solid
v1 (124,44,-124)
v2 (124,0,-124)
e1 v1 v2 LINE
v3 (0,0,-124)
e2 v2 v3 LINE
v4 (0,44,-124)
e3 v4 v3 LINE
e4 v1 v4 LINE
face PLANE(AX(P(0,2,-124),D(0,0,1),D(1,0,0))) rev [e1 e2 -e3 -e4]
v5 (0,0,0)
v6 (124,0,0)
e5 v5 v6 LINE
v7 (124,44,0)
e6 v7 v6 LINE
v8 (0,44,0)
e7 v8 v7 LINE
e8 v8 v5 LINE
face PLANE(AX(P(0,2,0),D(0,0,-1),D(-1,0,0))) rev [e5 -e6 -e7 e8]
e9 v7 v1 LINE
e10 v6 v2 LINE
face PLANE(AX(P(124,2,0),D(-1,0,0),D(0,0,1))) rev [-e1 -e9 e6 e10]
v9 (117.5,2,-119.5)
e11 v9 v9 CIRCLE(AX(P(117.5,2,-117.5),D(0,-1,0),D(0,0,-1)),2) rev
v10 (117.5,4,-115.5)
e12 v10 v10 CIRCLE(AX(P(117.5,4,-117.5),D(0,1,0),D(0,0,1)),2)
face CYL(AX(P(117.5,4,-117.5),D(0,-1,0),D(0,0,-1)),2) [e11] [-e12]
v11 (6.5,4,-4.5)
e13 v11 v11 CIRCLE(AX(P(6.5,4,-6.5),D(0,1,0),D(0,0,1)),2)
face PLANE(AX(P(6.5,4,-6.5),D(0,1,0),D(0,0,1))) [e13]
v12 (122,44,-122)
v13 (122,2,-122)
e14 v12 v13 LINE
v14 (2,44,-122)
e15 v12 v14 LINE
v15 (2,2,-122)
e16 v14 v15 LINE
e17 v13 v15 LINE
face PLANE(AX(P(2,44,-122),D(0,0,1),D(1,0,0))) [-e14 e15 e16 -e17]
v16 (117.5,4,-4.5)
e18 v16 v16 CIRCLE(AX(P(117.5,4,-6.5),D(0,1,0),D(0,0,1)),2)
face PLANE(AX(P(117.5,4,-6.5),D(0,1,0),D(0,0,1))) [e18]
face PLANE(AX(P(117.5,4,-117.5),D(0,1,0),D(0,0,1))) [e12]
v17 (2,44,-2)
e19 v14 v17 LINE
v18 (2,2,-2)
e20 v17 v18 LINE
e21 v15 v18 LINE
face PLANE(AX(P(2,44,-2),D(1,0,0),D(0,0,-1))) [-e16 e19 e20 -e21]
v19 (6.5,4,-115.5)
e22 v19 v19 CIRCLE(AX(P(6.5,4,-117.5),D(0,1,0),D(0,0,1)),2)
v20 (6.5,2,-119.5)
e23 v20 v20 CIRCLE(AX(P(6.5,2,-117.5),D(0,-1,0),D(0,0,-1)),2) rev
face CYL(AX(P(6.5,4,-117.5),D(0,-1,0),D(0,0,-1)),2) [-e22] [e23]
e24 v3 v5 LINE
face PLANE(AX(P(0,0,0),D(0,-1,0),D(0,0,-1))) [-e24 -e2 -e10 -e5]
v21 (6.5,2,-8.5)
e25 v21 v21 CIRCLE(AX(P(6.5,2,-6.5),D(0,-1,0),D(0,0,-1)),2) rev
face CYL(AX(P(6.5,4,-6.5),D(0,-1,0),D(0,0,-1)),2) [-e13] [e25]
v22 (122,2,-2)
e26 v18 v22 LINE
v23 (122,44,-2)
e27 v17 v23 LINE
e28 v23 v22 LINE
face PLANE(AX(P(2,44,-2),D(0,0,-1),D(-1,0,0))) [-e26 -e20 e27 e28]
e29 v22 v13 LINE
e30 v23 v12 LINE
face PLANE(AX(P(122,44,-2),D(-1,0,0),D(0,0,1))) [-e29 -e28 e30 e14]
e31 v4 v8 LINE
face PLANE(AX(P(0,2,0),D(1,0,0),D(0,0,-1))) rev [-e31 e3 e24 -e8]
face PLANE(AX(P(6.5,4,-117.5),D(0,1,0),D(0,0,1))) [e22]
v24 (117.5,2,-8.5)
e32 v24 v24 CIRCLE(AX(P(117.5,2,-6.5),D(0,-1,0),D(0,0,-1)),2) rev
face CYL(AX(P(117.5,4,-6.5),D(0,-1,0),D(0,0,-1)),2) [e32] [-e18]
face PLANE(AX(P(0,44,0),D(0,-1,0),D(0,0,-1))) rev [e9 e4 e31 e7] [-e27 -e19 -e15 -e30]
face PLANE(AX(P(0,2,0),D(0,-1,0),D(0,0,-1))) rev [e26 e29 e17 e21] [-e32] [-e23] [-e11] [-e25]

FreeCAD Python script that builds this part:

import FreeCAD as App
import Part
import Sketcher

doc = App.newDocument("Part")
body = doc.addObject("PartDesign::Body", "Body")

# Sketch on XZ plane
sketch1 = doc.addObject("Sketcher::SketchObject", "Sketch")
body.addObject(sketch1)
sketch1.AttachmentSupport = (doc.XZ_Plane, [""])
sketch1.MapMode = "FlatFace"
sketch1.addGeometry(Part.LineSegment(App.Vector(0, -124, 0), App.Vector(0, 0, 0)), False)
sketch1.addGeometry(Part.LineSegment(App.Vector(0, 0, 0), App.Vector(124, 0, 0)), False)
sketch1.addGeometry(Part.LineSegment(App.Vector(124, 0, 0), App.Vector(124, -124, 0)), False)
sketch1.addGeometry(Part.LineSegment(App.Vector(124, -124, 0), App.Vector(0, -124, 0)), False)
sketch1.addConstraint(Sketcher.Constraint("Coincident", 0, 2, 1, 1))
sketch1.addConstraint(Sketcher.Constraint("Coincident", 1, 2, 2, 1))
sketch1.addConstraint(Sketcher.Constraint("Coincident", 2, 2, 3, 1))
sketch1.addConstraint(Sketcher.Constraint("Coincident", 3, 2, 0, 1))
sketch1.addConstraint(Sketcher.Constraint("Vertical", 0))
sketch1.addConstraint(Sketcher.Constraint("Horizontal", 1))
sketch1.addConstraint(Sketcher.Constraint("Vertical", 2))
sketch1.addConstraint(Sketcher.Constraint("Horizontal", 3))
sketch1.addConstraint(Sketcher.Constraint("Coincident", 0, 2, -1, 1))
sketch1.addConstraint(Sketcher.Constraint("Equal", 3, 0))
sketch1.addConstraint(Sketcher.Constraint("DistanceX", 1, 1, 1, 2, 124.0))
pad1 = doc.addObject("PartDesign::Pad", "Pad")
body.addObject(pad1)
pad1.Profile = sketch1
pad1.Length = 2
pad1.Reversed = True

# Sketch on XZ plane
sketch2 = doc.addObject("Sketcher::SketchObject", "Sketch001")
body.addObject(sketch2)
sketch2.AttachmentSupport = (doc.XZ_Plane, [""])
sketch2.MapMode = "FlatFace"
sketch2.AttachmentOffset = App.Placement(App.Vector(0, 0, -2), App.Rotation())
sketch2.addGeometry(Part.LineSegment(App.Vector(0, -124, 0), App.Vector(0, 0, 0)), False)
sketch2.addGeometry(Part.LineSegment(App.Vector(0, 0, 0), App.Vector(124, 0, 0)), False)
sketch2.addGeometry(Part.LineSegment(App.Vector(124, 0, 0), App.Vector(124, -124, 0)), False)
sketch2.addGeometry(Part.LineSegment(App.Vector(124, -124, 0), App.Vector(0, -124, 0)), False)
sketch2.addGeometry(Part.LineSegment(App.Vector(122, -2, 0), App.Vector(2, -2, 0)), False)
sketch2.addGeometry(Part.LineSegment(App.Vector(2, -2, 0), App.Vector(2, -122, 0)), False)
sketch2.addGeometry(Part.LineSegment(App.Vector(2, -122, 0), App.Vector(122, -122, 0)), False)
sketch2.addGeometry(Part.LineSegment(App.Vector(122, -122, 0), App.Vector(122, -2, 0)), False)
sketch2.addConstraint(Sketcher.Constraint("Coincident", 0, 2, 1, 1))
sketch2.addConstraint(Sketcher.Constraint("Coincident", 1, 2, 2, 1))
sketch2.addConstraint(Sketcher.Constraint("Coincident", 2, 2, 3, 1))
sketch2.addConstraint(Sketcher.Constraint("Coincident", 3, 2, 0, 1))
sketch2.addConstraint(Sketcher.Constraint("Coincident", 4, 2, 5, 1))
sketch2.addConstraint(Sketcher.Constraint("Coincident", 5, 2, 6, 1))
sketch2.addConstraint(Sketcher.Constraint("Coincident", 6, 2, 7, 1))
sketch2.addConstraint(Sketcher.Constraint("Coincident", 7, 2, 4, 1))
sketch2.addConstraint(Sketcher.Constraint("Vertical", 0))
sketch2.addConstraint(Sketcher.Constraint("Horizontal", 1))
sketch2.addConstraint(Sketcher.Constraint("Vertical", 2))
sketch2.addConstraint(Sketcher.Constraint("Horizontal", 3))
sketch2.addConstraint(Sketcher.Constraint("Horizontal", 4))
sketch2.addConstraint(Sketcher.Constraint("Vertical", 5))
sketch2.addConstraint(Sketcher.Constraint("Horizontal", 6))
sketch2.addConstraint(Sketcher.Constraint("Vertical", 7))
sketch2.addConstraint(Sketcher.Constraint("Coincident", 0, 2, -1, 1))
sketch2.addConstraint(Sketcher.Constraint("Equal", 3, 0))
sketch2.addConstraint(Sketcher.Constraint("Equal", 6, 5))
sketch2.addConstraint(Sketcher.Constraint("DistanceX", 1, 1, 1, 2, 124.0))
sketch2.addConstraint(Sketcher.Constraint("DistanceX", 4, 2, 4, 1, 120.0))
sketch2.addConstraint(Sketcher.Constraint("DistanceX", -1, 1, 4, 2, 2.0))
sketch2.addConstraint(Sketcher.Constraint("DistanceY", 4, 2, -1, 1, 2.0))
pad2 = doc.addObject("PartDesign::Pad", "Pad001")
body.addObject(pad2)
pad2.Profile = sketch2
pad2.Length = 42
pad2.Reversed = True

# Sketch on XZ plane
sketch3 = doc.addObject("Sketcher::SketchObject", "Sketch002")
body.addObject(sketch3)
sketch3.AttachmentSupport = (doc.XZ_Plane, [""])
sketch3.MapMode = "FlatFace"
sketch3.AttachmentOffset = App.Placement(App.Vector(0, 0, -2), App.Rotation())
sketch3.addGeometry(Part.Circle(App.Vector(6.5, -6.5, 0), App.Vector(0, 0, 1), 2), False)
sketch3.addGeometry(Part.Circle(App.Vector(117.5, -6.5, 0), App.Vector(0, 0, 1), 2), False)
sketch3.addGeometry(Part.Circle(App.Vector(6.5, -117.5, 0), App.Vector(0, 0, 1), 2), False)
sketch3.addGeometry(Part.Circle(App.Vector(117.5, -117.5, 0), App.Vector(0, 0, 1), 2), False)
sketch3.addConstraint(Sketcher.Constraint("Equal", 0, 1))
sketch3.addConstraint(Sketcher.Constraint("Equal", 1, 2))
sketch3.addConstraint(Sketcher.Constraint("Equal", 2, 3))
sketch3.addConstraint(Sketcher.Constraint("Horizontal", 0, 3, 1, 3))
sketch3.addConstraint(Sketcher.Constraint("Horizontal", 2, 3, 3, 3))
sketch3.addConstraint(Sketcher.Constraint("Vertical", 0, 3, 2, 3))
sketch3.addConstraint(Sketcher.Constraint("Vertical", 1, 3, 3, 3))
sketch3.addConstraint(Sketcher.Constraint("Diameter", 0, 4.0))
sketch3.addConstraint(Sketcher.Constraint("DistanceX", 0, 3, 1, 3, 111.0))
sketch3.addConstraint(Sketcher.Constraint("DistanceY", 2, 3, 0, 3, 111.0))
sketch3.addConstraint(Sketcher.Constraint("DistanceX", -1, 1, 0, 3, 6.5))
sketch3.addConstraint(Sketcher.Constraint("DistanceY", 0, 3, -1, 1, 6.5))
pad3 = doc.addObject("PartDesign::Pad", "Pad002")
body.addObject(pad3)
pad3.Profile = sketch3
pad3.Length = 2
pad3.Reversed = True

doc.recompute()
